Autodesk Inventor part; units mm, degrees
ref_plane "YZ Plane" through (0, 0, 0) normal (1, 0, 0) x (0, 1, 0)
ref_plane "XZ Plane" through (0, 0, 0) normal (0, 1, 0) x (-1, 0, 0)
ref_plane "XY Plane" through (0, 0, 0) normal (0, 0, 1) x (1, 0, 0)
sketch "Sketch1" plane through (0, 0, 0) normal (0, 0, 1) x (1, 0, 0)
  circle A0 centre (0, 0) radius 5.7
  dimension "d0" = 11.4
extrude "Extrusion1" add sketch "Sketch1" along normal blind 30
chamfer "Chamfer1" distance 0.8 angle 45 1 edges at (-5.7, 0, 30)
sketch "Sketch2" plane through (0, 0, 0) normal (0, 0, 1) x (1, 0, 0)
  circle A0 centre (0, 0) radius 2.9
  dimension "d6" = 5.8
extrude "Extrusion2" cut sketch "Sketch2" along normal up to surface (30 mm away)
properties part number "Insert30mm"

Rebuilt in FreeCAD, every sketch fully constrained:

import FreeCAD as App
import Part
import Sketcher
from FreeCAD import Vector
Q = App.Units.Quantity


def edges_at(feature, points):
    """Names of the edges that pass closest to the given points."""
    edges = feature.Shape.Edges
    near = lambda p: min(range(len(edges)), key=lambda i: edges[i].distToShape(Part.Vertex(*p))[0])
    return sorted({f"Edge{near(p) + 1}" for p in points})

doc = App.newDocument("Part")
body = doc.addObject("PartDesign::Body", "Body")

# Sketch on XY plane
sketch1 = body.newObject("Sketcher::SketchObject", "Sketch")
sketch1.AttachmentSupport = (doc.getObject("XY_Plane"), [""])
sketch1.MapMode = "FlatFace"
sketch1.addGeometry(Part.Circle(Vector(0, 0, 0), Vector(0, 0, 1), 6), False)
sketch1.addConstraint([
    Sketcher.Constraint("Coincident", 0, 3, -1, 1),
    Sketcher.Constraint("Diameter", 0, Q("11.4 mm")),
])
pad1 = body.newObject("PartDesign::Pad", "Pad")
pad1.Profile = sketch1
pad1.Length = 30
doc.recompute()

chamfer = body.newObject("PartDesign::Chamfer", "Chamfer")
chamfer.Base = (pad1, edges_at(pad1, [(-5.7, 0, 30)]))
chamfer.Size = 0.8

# Sketch on XY plane
sketch2 = body.newObject("Sketcher::SketchObject", "Sketch001")
sketch2.AttachmentSupport = (doc.getObject("XY_Plane"), [""])
sketch2.MapMode = "FlatFace"
sketch2.addGeometry(Part.Circle(Vector(0, 0, 0), Vector(0, 0, 1), 2.9), False)
sketch2.addConstraint([
    Sketcher.Constraint("Coincident", 0, 3, -1, 1),
    Sketcher.Constraint("Diameter", 0, Q("5.8 mm")),
])
pocket1 = body.newObject("PartDesign::Pocket", "Pocket")
pocket1.Profile = sketch2
pocket1.Length = 30
pocket1.Reversed = True

doc.recompute()
